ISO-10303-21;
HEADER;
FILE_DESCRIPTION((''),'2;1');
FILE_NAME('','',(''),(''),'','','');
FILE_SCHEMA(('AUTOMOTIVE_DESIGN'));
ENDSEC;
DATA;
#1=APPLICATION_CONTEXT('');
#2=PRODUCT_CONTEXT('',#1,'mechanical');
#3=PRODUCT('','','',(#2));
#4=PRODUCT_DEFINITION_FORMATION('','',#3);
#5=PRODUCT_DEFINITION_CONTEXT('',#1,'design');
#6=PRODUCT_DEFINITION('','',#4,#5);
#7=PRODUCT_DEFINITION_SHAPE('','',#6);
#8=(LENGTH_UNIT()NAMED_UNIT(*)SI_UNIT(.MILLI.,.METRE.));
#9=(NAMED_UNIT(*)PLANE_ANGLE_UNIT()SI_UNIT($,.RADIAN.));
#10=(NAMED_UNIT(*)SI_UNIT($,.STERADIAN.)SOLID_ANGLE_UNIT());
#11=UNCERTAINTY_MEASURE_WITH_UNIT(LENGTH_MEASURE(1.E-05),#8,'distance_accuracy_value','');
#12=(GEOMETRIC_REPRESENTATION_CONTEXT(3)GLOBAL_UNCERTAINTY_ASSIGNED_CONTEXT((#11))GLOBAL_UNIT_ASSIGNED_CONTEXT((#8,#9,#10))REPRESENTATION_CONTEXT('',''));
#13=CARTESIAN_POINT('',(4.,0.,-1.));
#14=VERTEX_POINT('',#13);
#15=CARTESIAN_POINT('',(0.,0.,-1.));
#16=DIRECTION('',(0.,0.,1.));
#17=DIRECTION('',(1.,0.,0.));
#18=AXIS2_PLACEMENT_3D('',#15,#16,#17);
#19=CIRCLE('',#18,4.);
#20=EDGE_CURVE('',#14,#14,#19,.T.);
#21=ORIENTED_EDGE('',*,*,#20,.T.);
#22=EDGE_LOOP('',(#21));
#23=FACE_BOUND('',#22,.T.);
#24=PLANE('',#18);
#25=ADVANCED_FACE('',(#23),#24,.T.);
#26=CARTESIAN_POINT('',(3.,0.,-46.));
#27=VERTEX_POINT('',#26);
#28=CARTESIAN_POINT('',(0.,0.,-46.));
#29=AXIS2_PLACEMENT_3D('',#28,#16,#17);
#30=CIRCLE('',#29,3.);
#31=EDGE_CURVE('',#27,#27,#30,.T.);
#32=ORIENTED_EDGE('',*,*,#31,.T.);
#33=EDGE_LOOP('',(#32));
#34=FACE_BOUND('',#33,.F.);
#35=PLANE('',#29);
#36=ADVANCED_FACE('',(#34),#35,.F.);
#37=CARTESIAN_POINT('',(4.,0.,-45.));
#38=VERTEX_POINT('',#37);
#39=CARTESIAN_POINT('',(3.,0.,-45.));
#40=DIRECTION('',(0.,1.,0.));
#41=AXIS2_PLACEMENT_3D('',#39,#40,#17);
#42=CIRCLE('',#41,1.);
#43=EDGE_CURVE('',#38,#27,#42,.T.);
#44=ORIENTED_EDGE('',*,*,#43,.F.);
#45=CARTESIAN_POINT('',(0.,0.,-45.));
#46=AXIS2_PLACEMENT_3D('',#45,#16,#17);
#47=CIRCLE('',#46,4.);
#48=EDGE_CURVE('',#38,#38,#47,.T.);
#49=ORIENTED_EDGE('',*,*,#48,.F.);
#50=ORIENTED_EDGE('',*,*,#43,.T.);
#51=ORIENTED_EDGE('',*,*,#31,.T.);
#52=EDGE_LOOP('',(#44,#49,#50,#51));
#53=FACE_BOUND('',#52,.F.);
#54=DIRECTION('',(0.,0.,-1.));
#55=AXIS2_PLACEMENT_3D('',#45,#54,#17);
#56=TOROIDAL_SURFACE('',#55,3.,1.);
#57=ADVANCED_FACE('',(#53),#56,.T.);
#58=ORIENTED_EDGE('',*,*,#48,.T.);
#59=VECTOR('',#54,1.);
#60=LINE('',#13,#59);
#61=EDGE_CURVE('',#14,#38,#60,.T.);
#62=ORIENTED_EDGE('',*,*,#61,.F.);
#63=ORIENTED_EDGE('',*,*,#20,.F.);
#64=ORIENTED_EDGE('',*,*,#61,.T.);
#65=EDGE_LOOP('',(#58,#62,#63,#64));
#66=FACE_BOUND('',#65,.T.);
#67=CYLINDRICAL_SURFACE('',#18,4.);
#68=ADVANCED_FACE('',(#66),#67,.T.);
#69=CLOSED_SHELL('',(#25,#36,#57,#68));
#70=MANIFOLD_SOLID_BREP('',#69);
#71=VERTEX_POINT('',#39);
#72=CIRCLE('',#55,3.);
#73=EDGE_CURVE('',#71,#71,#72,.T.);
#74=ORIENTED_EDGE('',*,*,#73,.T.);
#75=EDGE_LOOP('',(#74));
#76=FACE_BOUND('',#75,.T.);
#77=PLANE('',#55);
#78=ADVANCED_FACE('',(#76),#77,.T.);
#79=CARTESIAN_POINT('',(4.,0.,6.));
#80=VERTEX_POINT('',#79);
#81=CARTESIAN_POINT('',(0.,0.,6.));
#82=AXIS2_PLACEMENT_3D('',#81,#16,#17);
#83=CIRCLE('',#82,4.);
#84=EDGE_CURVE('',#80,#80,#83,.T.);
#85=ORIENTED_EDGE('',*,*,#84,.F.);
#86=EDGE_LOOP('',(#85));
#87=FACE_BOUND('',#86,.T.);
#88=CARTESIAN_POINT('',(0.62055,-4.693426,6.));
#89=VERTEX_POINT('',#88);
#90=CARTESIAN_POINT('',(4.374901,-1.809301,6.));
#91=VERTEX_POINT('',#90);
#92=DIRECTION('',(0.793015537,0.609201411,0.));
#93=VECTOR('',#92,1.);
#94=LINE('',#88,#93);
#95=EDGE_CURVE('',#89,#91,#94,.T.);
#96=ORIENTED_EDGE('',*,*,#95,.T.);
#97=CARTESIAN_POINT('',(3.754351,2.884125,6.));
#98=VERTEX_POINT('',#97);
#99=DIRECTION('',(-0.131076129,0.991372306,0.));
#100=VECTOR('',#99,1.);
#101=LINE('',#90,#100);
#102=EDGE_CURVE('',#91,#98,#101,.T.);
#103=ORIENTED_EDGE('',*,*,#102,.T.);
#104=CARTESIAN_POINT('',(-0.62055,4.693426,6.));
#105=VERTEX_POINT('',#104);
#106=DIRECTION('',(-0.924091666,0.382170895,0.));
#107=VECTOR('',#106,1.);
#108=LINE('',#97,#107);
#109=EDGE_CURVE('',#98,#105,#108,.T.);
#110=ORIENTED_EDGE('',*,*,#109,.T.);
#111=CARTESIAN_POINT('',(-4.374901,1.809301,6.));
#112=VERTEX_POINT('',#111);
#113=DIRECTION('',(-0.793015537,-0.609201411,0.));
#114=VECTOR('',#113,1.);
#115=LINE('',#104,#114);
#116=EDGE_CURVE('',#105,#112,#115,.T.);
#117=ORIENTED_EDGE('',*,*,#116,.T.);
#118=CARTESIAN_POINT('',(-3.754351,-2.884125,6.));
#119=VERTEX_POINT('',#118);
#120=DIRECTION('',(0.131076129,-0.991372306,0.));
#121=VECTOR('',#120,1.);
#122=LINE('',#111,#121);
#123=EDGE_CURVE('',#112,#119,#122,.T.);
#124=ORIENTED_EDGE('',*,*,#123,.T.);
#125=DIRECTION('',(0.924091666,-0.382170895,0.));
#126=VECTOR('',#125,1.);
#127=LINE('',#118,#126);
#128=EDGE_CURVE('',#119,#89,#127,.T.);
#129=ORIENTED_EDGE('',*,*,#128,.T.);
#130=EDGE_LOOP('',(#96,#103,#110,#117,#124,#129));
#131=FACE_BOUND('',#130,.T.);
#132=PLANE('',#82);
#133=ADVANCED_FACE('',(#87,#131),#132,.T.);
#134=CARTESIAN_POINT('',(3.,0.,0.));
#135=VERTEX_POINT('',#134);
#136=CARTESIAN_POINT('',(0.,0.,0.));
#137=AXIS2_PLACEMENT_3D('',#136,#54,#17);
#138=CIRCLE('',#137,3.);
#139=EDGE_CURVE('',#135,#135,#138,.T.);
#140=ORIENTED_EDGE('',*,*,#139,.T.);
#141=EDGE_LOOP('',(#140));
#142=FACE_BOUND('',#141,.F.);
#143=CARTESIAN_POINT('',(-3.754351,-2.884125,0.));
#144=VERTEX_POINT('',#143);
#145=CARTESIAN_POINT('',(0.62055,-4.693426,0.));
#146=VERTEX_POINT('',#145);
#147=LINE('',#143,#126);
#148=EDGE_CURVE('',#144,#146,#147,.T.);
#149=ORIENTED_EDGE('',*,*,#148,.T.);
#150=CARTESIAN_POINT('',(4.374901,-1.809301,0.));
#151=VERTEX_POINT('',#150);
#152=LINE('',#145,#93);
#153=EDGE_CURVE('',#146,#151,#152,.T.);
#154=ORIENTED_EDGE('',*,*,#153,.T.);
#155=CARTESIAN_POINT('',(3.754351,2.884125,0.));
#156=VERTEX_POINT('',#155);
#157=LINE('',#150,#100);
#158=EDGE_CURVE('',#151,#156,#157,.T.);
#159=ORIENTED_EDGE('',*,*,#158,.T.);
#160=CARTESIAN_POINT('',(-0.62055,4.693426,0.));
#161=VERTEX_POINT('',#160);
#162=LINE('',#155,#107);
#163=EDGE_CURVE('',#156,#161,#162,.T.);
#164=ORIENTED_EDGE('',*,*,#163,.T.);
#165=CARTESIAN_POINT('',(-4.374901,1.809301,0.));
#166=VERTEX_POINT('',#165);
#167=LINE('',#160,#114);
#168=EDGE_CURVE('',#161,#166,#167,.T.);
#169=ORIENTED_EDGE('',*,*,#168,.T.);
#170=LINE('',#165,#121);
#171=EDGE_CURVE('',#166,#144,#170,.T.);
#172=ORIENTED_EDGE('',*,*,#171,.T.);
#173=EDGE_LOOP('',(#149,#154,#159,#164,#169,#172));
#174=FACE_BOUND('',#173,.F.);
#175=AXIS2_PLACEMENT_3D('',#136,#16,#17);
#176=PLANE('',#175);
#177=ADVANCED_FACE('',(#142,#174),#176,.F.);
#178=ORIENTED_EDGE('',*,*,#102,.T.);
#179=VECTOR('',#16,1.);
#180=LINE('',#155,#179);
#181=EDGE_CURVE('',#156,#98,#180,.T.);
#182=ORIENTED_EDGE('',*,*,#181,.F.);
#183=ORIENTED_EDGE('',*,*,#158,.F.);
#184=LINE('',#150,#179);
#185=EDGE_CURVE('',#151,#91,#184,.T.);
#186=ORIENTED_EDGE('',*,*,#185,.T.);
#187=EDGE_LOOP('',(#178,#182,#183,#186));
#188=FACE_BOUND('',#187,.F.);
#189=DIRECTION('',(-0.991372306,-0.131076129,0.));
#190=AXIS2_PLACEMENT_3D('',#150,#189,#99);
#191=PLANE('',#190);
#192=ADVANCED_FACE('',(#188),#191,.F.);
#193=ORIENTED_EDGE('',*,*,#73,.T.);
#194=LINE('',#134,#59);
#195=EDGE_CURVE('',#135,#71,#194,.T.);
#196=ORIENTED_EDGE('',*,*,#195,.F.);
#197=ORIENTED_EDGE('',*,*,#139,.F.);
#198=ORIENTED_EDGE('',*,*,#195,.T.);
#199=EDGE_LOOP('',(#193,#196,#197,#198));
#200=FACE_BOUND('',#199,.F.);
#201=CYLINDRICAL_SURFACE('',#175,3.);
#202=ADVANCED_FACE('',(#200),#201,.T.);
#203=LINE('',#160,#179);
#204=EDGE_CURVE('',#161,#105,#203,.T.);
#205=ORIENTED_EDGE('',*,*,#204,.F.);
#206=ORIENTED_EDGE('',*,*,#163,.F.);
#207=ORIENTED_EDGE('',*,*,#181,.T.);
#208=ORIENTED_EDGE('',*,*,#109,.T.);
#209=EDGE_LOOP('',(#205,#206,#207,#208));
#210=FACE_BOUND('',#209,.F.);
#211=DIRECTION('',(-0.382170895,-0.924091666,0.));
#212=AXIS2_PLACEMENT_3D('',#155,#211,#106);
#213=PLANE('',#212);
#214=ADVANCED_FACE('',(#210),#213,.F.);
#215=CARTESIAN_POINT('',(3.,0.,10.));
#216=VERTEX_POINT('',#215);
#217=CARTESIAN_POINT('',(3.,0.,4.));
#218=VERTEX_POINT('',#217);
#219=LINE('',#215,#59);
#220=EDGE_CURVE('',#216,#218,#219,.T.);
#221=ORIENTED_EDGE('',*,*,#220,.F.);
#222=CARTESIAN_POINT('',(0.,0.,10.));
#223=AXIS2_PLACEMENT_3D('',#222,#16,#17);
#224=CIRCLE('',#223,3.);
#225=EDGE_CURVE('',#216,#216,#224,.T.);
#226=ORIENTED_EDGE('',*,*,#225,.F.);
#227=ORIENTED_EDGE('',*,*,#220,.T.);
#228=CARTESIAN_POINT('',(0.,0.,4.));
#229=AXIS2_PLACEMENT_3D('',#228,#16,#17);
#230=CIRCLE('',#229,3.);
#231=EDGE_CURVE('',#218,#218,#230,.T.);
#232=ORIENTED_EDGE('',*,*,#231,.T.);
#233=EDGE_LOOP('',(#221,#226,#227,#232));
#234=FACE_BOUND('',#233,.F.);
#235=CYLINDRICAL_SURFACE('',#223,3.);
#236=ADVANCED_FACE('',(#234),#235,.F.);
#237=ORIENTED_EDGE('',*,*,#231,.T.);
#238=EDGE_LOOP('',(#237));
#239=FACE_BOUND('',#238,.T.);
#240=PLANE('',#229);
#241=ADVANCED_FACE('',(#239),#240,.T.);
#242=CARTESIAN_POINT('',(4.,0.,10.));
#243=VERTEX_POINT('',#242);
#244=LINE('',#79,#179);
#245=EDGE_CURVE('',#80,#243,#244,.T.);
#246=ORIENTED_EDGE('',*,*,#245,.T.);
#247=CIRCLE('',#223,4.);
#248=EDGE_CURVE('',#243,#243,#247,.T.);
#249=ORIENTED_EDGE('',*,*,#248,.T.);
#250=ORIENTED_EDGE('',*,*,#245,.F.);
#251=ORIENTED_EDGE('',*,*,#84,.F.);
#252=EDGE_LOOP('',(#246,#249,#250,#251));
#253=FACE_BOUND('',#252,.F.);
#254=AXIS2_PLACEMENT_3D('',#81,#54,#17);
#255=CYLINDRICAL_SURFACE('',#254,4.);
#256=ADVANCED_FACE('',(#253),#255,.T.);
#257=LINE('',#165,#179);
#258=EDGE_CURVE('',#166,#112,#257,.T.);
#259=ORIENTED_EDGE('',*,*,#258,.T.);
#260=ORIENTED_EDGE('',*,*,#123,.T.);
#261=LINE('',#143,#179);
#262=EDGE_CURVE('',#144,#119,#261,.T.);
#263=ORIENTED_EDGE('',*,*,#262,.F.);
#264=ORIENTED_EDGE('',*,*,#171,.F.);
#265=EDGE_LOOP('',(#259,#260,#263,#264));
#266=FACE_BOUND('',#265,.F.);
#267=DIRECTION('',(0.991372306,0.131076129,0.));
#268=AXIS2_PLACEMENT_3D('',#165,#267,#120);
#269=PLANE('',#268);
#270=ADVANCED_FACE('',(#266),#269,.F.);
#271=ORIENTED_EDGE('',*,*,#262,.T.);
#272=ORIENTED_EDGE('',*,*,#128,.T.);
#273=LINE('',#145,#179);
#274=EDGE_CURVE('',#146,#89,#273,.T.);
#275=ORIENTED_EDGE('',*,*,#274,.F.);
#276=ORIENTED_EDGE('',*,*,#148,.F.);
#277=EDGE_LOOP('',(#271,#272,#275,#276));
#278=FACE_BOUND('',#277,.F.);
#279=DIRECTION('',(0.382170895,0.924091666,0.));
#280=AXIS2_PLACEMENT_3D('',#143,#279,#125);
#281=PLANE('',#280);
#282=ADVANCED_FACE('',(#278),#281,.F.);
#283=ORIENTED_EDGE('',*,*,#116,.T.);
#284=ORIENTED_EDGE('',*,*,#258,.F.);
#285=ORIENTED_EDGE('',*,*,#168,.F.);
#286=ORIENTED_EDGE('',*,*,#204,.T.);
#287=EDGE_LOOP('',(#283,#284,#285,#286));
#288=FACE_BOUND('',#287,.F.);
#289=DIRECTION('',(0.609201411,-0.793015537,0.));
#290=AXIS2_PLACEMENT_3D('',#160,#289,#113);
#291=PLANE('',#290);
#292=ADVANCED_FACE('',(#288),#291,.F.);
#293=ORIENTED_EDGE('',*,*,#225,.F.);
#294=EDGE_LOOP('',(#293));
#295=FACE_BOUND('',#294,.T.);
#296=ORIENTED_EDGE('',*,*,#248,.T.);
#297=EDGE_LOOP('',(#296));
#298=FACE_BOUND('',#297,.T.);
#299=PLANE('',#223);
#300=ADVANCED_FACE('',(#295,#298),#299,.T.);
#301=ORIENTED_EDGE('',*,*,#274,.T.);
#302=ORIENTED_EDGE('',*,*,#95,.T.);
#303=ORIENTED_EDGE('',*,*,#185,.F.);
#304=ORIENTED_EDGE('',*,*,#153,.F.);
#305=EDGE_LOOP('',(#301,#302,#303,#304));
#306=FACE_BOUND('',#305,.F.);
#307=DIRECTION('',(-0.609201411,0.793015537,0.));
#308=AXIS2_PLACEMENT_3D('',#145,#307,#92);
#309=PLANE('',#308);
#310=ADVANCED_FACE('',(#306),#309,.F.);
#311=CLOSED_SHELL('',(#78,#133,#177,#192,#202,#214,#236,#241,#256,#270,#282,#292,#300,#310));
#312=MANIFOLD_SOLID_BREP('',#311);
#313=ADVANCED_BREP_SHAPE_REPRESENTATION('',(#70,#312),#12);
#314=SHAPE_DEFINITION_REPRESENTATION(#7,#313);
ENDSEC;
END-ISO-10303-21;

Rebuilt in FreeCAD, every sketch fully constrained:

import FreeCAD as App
import Part
import Sketcher
from FreeCAD import Vector
Q = App.Units.Quantity


def edges_at(feature, points):
    """Names of the edges that pass closest to the given points."""
    edges = feature.Shape.Edges
    near = lambda p: min(range(len(edges)), key=lambda i: edges[i].distToShape(Part.Vertex(*p))[0])
    return sorted({f"Edge{near(p) + 1}" for p in points})

doc = App.newDocument("Part")
params = doc.addObject("Spreadsheet::Sheet", "Params")
for row, (alias, value) in enumerate([
    ("pad1_length", "6 mm"),
    ("sketch2_diameter", "6 mm"),
    ("pad2_length", "45 mm"),
    ("sketch3_diameter", "8 mm"),
    ("pad3_length", "4 mm"),
    ("sketch4_diameter", "6 mm"),
    ("pocket1_length", "6 mm"),
    ("sketch5_diameter", "8 mm"),
    ("pad4_length", "45 mm"),
    ("fillet_radius", "1 mm"),
], start=1):
    params.set(f"A{row}", alias)
    params.set(f"B{row}", "=" + value)
    params.setAlias(f"B{row}", alias)

body = doc.addObject("PartDesign::Body", "Body")

# Sketch on XY plane
sketch1 = doc.addObject("Sketcher::SketchObject", "Sketch")
body.addObject(sketch1)
sketch1.AttachmentSupport = (doc.XY_Plane, [""])
sketch1.MapMode = "FlatFace"
sketch1.addGeometry([
    Part.LineSegment(Vector(3.754351, 2.884125, 0), Vector(-0.62055, 4.693426, 0)),  # 0
    Part.LineSegment(Vector(-0.62055, 4.693426, 0), Vector(-4.374901, 1.809301, 0)),  # 1
    Part.LineSegment(Vector(-4.374901, 1.809301, 0), Vector(-3.754351, -2.884125, 0)),  # 2
    Part.LineSegment(Vector(-3.754351, -2.884125, 0), Vector(0.62055, -4.693426, 0)),  # 3
    Part.LineSegment(Vector(0.62055, -4.693426, 0), Vector(4.374901, -1.809301, 0)),  # 4
    Part.LineSegment(Vector(4.374901, -1.809301, 0), Vector(3.754351, 2.884125, 0)),  # 5
], False)
sketch1.addConstraint([
    Sketcher.Constraint("Coincident", 0, 2, 1, 1),
    Sketcher.Constraint("Coincident", 1, 2, 2, 1),
    Sketcher.Constraint("Coincident", 2, 2, 3, 1),
    Sketcher.Constraint("Coincident", 3, 2, 4, 1),
    Sketcher.Constraint("Coincident", 4, 2, 5, 1),
    Sketcher.Constraint("Coincident", 5, 2, 0, 1),
    Sketcher.Constraint("Symmetric", 0, 2, 3, 2, -1, 1),
    Sketcher.Constraint("Symmetric", 1, 2, 4, 2, -1, 1),
    Sketcher.Constraint("Symmetric", 2, 2, 5, 2, -1, 1),
    Sketcher.Constraint("Equal", 0, 1),
    Sketcher.Constraint("Equal", 1, 2),
    Sketcher.Constraint("DistanceX", 1, 2, -1, 1, Q("4.374901 mm")),
    Sketcher.Constraint("DistanceY", -1, 1, 1, 2, Q("1.809301 mm")),
    Sketcher.Constraint("DistanceX", 2, 2, 0, 2, Q("3.133801 mm")),
    Sketcher.Constraint("DistanceX", 2, 2, 3, 2, Q("4.374901 mm")),
])
pad1 = doc.addObject("PartDesign::Pad", "Pad")
body.addObject(pad1)
pad1.Profile = sketch1
pad1.setExpression("Length", "Params.pad1_length")

# Sketch on XY plane
sketch2 = doc.addObject("Sketcher::SketchObject", "Sketch001")
body.addObject(sketch2)
sketch2.AttachmentSupport = (doc.XY_Plane, [""])
sketch2.MapMode = "FlatFace"
sketch2.addGeometry(Part.Circle(Vector(0, 0, 0), Vector(0, 0, 1), 3), False)
sketch2.addConstraint([
    Sketcher.Constraint("Coincident", 0, 3, -1, 1),
    Sketcher.Constraint("Diameter", 0, Q("6 mm")),
])
sketch2.setExpression("Constraints[1]", "Params.sketch2_diameter")
pad2 = doc.addObject("PartDesign::Pad", "Pad001")
body.addObject(pad2)
pad2.Profile = sketch2
pad2.setExpression("Length", "Params.pad2_length")
pad2.Reversed = True

# Sketch on XY plane
sketch3 = doc.addObject("Sketcher::SketchObject", "Sketch002")
body.addObject(sketch3)
sketch3.AttachmentSupport = (doc.XY_Plane, [""])
sketch3.MapMode = "FlatFace"
sketch3.AttachmentOffset = App.Placement(Vector(0, 0, 6), App.Rotation())
sketch3.addGeometry(Part.Circle(Vector(0, 0, 0), Vector(0, 0, 1), 4), False)
sketch3.addConstraint([
    Sketcher.Constraint("Coincident", 0, 3, -1, 1),
    Sketcher.Constraint("Diameter", 0, Q("8 mm")),
])
sketch3.setExpression("Constraints[1]", "Params.sketch3_diameter")
pad3 = doc.addObject("PartDesign::Pad", "Pad002")
body.addObject(pad3)
pad3.Profile = sketch3
pad3.setExpression("Length", "Params.pad3_length")

# Sketch on XY plane
sketch4 = doc.addObject("Sketcher::SketchObject", "Sketch003")
body.addObject(sketch4)
sketch4.AttachmentSupport = (doc.XY_Plane, [""])
sketch4.MapMode = "FlatFace"
sketch4.AttachmentOffset = App.Placement(Vector(0, 0, 10), App.Rotation())
sketch4.addGeometry(Part.Circle(Vector(0, 0, 0), Vector(0, 0, 1), 3), False)
sketch4.addConstraint([
    Sketcher.Constraint("Coincident", 0, 3, -1, 1),
    Sketcher.Constraint("Diameter", 0, Q("6 mm")),
])
sketch4.setExpression("Constraints[1]", "Params.sketch4_diameter")
pocket1 = doc.addObject("PartDesign::Pocket", "Pocket")
body.addObject(pocket1)
pocket1.Profile = sketch4
pocket1.setExpression("Length", "Params.pocket1_length")
body2 = doc.addObject("PartDesign::Body", "Body001")

# Sketch on XY plane
sketch5 = doc.addObject("Sketcher::SketchObject", "Sketch004")
body2.addObject(sketch5)
sketch5.AttachmentSupport = (doc.getObject("XY_Plane001"), [""])
sketch5.MapMode = "FlatFace"
sketch5.AttachmentOffset = App.Placement(Vector(0, 0, -1), App.Rotation())
sketch5.addGeometry(Part.Circle(Vector(0, 0, 0), Vector(0, 0, 1), 4), False)
sketch5.addConstraint([
    Sketcher.Constraint("Coincident", 0, 3, -1, 1),
    Sketcher.Constraint("Diameter", 0, Q("8 mm")),
])
sketch5.setExpression("Constraints[1]", "Params.sketch5_diameter")
pad4 = doc.addObject("PartDesign::Pad", "Pad003")
body2.addObject(pad4)
pad4.Profile = sketch5
pad4.setExpression("Length", "Params.pad4_length")
pad4.Reversed = True
doc.recompute()

fillet = doc.addObject("PartDesign::Fillet", "Fillet")
body2.addObject(fillet)
fillet.Base = (pad4, edges_at(pad4, [(-4, 0, -46)]))
fillet.setExpression("Radius", "Params.fillet_radius")

doc.recompute()
